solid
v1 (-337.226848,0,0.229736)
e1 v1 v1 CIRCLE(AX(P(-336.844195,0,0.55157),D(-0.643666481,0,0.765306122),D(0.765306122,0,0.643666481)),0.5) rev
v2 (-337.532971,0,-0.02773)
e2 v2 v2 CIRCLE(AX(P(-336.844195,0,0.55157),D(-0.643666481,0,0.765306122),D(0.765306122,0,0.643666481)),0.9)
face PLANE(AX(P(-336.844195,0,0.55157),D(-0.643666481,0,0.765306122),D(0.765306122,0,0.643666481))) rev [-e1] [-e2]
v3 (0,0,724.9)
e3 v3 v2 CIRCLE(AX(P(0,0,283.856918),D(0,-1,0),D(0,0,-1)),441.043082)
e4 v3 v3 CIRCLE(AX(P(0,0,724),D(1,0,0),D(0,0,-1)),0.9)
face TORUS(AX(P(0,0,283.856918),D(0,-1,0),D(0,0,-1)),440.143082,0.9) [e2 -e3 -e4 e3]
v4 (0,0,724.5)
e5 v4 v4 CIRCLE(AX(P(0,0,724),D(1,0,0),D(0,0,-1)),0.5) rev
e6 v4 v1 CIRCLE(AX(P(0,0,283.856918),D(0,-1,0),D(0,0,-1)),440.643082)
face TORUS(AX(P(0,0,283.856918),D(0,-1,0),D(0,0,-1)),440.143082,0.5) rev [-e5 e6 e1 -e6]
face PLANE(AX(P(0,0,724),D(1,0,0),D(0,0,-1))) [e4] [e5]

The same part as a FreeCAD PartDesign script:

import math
import FreeCAD as App
import Part
import Sketcher
Q = App.Units.Quantity

doc = App.newDocument("Part")
params = doc.addObject("Spreadsheet::Sheet", "Params")
for row, (alias, value) in enumerate([
    ("sketch1_diameter", "1 mm"),
    ("sketch1_diameter2", "1.8 mm"),
    ("sketch2_radius", "441 mm"),
], start=1):
    params.set(f"A{row}", alias)
    params.set(f"B{row}", "=" + value)
    params.setAlias(f"B{row}", alias)

body = doc.addObject("PartDesign::Body", "Body")

# Sketch on YZ plane
sketch1 = body.newObject("Sketcher::SketchObject", "Sketch")
sketch1.AttachmentSupport = (doc.getObject("YZ_Plane"), [""])
sketch1.MapMode = "FlatFace"
sketch1.addGeometry([
    Part.Circle(App.Vector(0, 724, 0), App.Vector(0, 0, 1), 0.9),
    Part.Circle(App.Vector(0, 724, 0), App.Vector(0, 0, 1), 0.5),
], False)
sketch1.addConstraint([
    Sketcher.Constraint("Coincident", 1, 3, 0, 3),
    Sketcher.Constraint("PointOnObject", 0, 3, -2),
    Sketcher.Constraint("Diameter", 1, Q("1 mm")),
    Sketcher.Constraint("Diameter", 0, Q("1.8 mm")),
    Sketcher.Constraint("DistanceY", -1, 1, 0, 3, Q("724 mm")),
])
sketch1.setExpression("Constraints[2]", "Params.sketch1_diameter")
sketch1.setExpression("Constraints[3]", "Params.sketch1_diameter2")

# Sketch on XZ plane
sketch2 = body.newObject("Sketcher::SketchObject", "Sketch001")
sketch2.AttachmentSupport = (doc.getObject("XZ_Plane"), [""])
sketch2.MapMode = "FlatFace"
sketch2.addGeometry(Part.ArcOfCircle(Part.Circle(App.Vector(0, 284, 0), App.Vector(0, 0, 1), 441), math.radians(90), math.radians(220)), False)
sketch2.addConstraint([
    Sketcher.Constraint("PointOnObject", 0, 3, -2),
    Sketcher.Constraint("PointOnObject", 0, 1, -2),
    Sketcher.Constraint("PointOnObject", 0, 2, -1),
    Sketcher.Constraint("Radius", 0, Q("441 mm")),
    Sketcher.Constraint("DistanceX", 0, 2, -1, 1, Q("337.5 mm")),
])
sketch2.setExpression("Constraints[3]", "Params.sketch2_radius")
doc.recompute()

additivepipe = body.newObject("PartDesign::AdditivePipe", "AdditivePipe")
additivepipe.Profile = sketch1
additivepipe.Spine = (sketch2, ["Edge1"])

doc.recompute()
